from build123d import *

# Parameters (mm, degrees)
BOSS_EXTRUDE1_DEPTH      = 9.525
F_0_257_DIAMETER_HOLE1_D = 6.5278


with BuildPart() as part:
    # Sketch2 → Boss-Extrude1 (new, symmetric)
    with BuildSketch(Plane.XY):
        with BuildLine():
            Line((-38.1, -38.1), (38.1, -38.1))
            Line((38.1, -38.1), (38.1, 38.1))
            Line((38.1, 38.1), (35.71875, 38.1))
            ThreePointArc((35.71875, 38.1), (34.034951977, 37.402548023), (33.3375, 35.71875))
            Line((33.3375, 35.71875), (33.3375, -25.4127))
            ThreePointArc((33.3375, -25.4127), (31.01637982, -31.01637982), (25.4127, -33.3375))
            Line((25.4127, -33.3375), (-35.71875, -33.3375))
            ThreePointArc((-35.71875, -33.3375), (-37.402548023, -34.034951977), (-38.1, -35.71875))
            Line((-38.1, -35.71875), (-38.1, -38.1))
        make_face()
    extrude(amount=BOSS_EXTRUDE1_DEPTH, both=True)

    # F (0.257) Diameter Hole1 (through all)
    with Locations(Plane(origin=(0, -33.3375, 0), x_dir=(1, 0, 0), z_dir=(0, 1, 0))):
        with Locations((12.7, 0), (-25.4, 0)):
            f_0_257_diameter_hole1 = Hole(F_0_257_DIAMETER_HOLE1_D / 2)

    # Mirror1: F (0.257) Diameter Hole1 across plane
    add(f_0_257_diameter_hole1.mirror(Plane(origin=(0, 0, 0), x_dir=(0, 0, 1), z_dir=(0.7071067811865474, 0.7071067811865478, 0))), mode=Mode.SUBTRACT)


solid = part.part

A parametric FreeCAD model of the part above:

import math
import FreeCAD as App
import Part
import Sketcher

V = App.Vector
Q = App.Units.Quantity

doc = App.newDocument("Part")
body = doc.addObject("PartDesign::Body", "Body")

sketch1 = body.newObject("Sketcher::SketchObject", "Sketch")
sketch1.AttachmentSupport = (doc.getObject("XY_Plane"), [""])
sketch1.MapMode = "FlatFace"
sketch1.addGeometry(Part.LineSegment(V(-38.1, -38.1, 0), V(38.1, -38.1, 0)), False)
sketch1.addGeometry(Part.LineSegment(V(38.1, -38.1, 0), V(38.1, 38.1, 0)), False)
sketch1.addGeometry(Part.LineSegment(V(38.1, 38.1, 0), V(35.7, 38.1, 0)), False)
sketch1.addGeometry(Part.ArcOfCircle(Part.Circle(V(35.7, 35.7, 0), V(0, 0, 1), 2.4), math.radians(90), math.radians(180)), False)
sketch1.addGeometry(Part.LineSegment(V(33.3, 35.7, 0), V(33.3, -25.4, 0)), False)
sketch1.addGeometry(Part.ArcOfCircle(Part.Circle(V(25.4, -25.4, 0), V(0, 0, 1), 7.9), math.radians(-90), math.radians(0)), False)
sketch1.addGeometry(Part.LineSegment(V(25.4, -33.3, 0), V(-35.7, -33.3, 0)), False)
sketch1.addGeometry(Part.ArcOfCircle(Part.Circle(V(-35.7, -35.7, 0), V(0, 0, 1), 2.4), math.radians(90), math.radians(180)), False)
sketch1.addGeometry(Part.LineSegment(V(-38.1, -35.7, 0), V(-38.1, -38.1, 0)), False)
sketch1.addConstraint(Sketcher.Constraint("Coincident", 0, 2, 1, 1))
sketch1.addConstraint(Sketcher.Constraint("Coincident", 1, 2, 2, 1))
sketch1.addConstraint(Sketcher.Constraint("Tangent", 2, 2, 3, 1))
sketch1.addConstraint(Sketcher.Constraint("Tangent", 3, 2, 4, 1))
sketch1.addConstraint(Sketcher.Constraint("Tangent", 4, 2, 5, 2))
sketch1.addConstraint(Sketcher.Constraint("Tangent", 5, 1, 6, 1))
sketch1.addConstraint(Sketcher.Constraint("Tangent", 6, 2, 7, 1))
sketch1.addConstraint(Sketcher.Constraint("Tangent", 7, 2, 8, 1))
sketch1.addConstraint(Sketcher.Constraint("Coincident", 8, 2, 0, 1))
sketch1.addConstraint(Sketcher.Constraint("Horizontal", 0))
sketch1.addConstraint(Sketcher.Constraint("Vertical", 1))
sketch1.addConstraint(Sketcher.Constraint("Horizontal", 2))
sketch1.addConstraint(Sketcher.Constraint("Vertical", 4))
sketch1.addConstraint(Sketcher.Constraint("Horizontal", 6))
sketch1.addConstraint(Sketcher.Constraint("Vertical", 8))
sketch1.addConstraint(Sketcher.Constraint("Equal", 3, 7))
sketch1.addConstraint(Sketcher.Constraint("Symmetric", 3, 3, 7, 3, -1, 1))
sketch1.addConstraint(Sketcher.Constraint("Symmetric", 1, 2, 8, 2, -1, 1))
sketch1.addConstraint(Sketcher.Constraint("Equal", 0, 1))
sketch1.addConstraint(Sketcher.Constraint("DistanceX", 0, 1, 0, 2, Q("3 in")))
sketch1.addConstraint(Sketcher.Constraint("Radius", 3, Q("0.09375 in")))
sketch1.addConstraint(Sketcher.Constraint("Radius", 5, Q("0.312 in")))
pad1 = body.newObject("PartDesign::Pad", "Pad")
pad1.Profile = sketch1
pad1.Length = Q("0.75 in")
pad1.Midplane = True

sketch2 = body.newObject("Sketcher::SketchObject", "Sketch001")
sketch2.AttachmentSupport = (doc.getObject("XZ_Plane"), [""])
sketch2.MapMode = "FlatFace"
sketch2.AttachmentOffset = App.Placement(V(0, 0, 1.3125 * 25.4), App.Rotation())
sketch2.addGeometry(Part.Circle(V(12.7, 0, 0), V(0, 0, 1), 3.3), False)
sketch2.addGeometry(Part.Circle(V(-25.4, 0, 0), V(0, 0, 1), 3.3), False)
sketch2.addConstraint(Sketcher.Constraint("Equal", 0, 1))
sketch2.addConstraint(Sketcher.Constraint("PointOnObject", 0, 3, -1))
sketch2.addConstraint(Sketcher.Constraint("PointOnObject", 1, 3, -1))
sketch2.addConstraint(Sketcher.Constraint("Diameter", 0, Q("0.257 in")))
sketch2.addConstraint(Sketcher.Constraint("DistanceX", 1, 3, -1, 1, Q("1 in")))
sketch2.addConstraint(Sketcher.Constraint("DistanceX", -1, 1, 0, 3, Q("0.5 in")))
doc.recompute()
hole = body.newObject("PartDesign::Hole", "Hole")
hole.Profile = sketch2
hole.ThreadType = "None"
hole.Diameter = Q("0.257 in")
hole.DepthType = "ThroughAll"
hole.Reversed = True
doc.recompute()

datumplane = body.newObject("PartDesign::Plane", "DatumPlane")
datumplane.Placement = App.Placement(V(0, 0, 0), App.Rotation(V(0.707106781, -0.707106781, 0), V(0, 0, -1), V(0.707106781, 0.707106781, 0), "ZXY"))
mirrored = body.newObject("PartDesign::Mirrored", "Mirrored")
mirrored.Originals = [hole]
mirrored.MirrorPlane = (datumplane, [""])
body.Tip = mirrored

doc.recompute()
